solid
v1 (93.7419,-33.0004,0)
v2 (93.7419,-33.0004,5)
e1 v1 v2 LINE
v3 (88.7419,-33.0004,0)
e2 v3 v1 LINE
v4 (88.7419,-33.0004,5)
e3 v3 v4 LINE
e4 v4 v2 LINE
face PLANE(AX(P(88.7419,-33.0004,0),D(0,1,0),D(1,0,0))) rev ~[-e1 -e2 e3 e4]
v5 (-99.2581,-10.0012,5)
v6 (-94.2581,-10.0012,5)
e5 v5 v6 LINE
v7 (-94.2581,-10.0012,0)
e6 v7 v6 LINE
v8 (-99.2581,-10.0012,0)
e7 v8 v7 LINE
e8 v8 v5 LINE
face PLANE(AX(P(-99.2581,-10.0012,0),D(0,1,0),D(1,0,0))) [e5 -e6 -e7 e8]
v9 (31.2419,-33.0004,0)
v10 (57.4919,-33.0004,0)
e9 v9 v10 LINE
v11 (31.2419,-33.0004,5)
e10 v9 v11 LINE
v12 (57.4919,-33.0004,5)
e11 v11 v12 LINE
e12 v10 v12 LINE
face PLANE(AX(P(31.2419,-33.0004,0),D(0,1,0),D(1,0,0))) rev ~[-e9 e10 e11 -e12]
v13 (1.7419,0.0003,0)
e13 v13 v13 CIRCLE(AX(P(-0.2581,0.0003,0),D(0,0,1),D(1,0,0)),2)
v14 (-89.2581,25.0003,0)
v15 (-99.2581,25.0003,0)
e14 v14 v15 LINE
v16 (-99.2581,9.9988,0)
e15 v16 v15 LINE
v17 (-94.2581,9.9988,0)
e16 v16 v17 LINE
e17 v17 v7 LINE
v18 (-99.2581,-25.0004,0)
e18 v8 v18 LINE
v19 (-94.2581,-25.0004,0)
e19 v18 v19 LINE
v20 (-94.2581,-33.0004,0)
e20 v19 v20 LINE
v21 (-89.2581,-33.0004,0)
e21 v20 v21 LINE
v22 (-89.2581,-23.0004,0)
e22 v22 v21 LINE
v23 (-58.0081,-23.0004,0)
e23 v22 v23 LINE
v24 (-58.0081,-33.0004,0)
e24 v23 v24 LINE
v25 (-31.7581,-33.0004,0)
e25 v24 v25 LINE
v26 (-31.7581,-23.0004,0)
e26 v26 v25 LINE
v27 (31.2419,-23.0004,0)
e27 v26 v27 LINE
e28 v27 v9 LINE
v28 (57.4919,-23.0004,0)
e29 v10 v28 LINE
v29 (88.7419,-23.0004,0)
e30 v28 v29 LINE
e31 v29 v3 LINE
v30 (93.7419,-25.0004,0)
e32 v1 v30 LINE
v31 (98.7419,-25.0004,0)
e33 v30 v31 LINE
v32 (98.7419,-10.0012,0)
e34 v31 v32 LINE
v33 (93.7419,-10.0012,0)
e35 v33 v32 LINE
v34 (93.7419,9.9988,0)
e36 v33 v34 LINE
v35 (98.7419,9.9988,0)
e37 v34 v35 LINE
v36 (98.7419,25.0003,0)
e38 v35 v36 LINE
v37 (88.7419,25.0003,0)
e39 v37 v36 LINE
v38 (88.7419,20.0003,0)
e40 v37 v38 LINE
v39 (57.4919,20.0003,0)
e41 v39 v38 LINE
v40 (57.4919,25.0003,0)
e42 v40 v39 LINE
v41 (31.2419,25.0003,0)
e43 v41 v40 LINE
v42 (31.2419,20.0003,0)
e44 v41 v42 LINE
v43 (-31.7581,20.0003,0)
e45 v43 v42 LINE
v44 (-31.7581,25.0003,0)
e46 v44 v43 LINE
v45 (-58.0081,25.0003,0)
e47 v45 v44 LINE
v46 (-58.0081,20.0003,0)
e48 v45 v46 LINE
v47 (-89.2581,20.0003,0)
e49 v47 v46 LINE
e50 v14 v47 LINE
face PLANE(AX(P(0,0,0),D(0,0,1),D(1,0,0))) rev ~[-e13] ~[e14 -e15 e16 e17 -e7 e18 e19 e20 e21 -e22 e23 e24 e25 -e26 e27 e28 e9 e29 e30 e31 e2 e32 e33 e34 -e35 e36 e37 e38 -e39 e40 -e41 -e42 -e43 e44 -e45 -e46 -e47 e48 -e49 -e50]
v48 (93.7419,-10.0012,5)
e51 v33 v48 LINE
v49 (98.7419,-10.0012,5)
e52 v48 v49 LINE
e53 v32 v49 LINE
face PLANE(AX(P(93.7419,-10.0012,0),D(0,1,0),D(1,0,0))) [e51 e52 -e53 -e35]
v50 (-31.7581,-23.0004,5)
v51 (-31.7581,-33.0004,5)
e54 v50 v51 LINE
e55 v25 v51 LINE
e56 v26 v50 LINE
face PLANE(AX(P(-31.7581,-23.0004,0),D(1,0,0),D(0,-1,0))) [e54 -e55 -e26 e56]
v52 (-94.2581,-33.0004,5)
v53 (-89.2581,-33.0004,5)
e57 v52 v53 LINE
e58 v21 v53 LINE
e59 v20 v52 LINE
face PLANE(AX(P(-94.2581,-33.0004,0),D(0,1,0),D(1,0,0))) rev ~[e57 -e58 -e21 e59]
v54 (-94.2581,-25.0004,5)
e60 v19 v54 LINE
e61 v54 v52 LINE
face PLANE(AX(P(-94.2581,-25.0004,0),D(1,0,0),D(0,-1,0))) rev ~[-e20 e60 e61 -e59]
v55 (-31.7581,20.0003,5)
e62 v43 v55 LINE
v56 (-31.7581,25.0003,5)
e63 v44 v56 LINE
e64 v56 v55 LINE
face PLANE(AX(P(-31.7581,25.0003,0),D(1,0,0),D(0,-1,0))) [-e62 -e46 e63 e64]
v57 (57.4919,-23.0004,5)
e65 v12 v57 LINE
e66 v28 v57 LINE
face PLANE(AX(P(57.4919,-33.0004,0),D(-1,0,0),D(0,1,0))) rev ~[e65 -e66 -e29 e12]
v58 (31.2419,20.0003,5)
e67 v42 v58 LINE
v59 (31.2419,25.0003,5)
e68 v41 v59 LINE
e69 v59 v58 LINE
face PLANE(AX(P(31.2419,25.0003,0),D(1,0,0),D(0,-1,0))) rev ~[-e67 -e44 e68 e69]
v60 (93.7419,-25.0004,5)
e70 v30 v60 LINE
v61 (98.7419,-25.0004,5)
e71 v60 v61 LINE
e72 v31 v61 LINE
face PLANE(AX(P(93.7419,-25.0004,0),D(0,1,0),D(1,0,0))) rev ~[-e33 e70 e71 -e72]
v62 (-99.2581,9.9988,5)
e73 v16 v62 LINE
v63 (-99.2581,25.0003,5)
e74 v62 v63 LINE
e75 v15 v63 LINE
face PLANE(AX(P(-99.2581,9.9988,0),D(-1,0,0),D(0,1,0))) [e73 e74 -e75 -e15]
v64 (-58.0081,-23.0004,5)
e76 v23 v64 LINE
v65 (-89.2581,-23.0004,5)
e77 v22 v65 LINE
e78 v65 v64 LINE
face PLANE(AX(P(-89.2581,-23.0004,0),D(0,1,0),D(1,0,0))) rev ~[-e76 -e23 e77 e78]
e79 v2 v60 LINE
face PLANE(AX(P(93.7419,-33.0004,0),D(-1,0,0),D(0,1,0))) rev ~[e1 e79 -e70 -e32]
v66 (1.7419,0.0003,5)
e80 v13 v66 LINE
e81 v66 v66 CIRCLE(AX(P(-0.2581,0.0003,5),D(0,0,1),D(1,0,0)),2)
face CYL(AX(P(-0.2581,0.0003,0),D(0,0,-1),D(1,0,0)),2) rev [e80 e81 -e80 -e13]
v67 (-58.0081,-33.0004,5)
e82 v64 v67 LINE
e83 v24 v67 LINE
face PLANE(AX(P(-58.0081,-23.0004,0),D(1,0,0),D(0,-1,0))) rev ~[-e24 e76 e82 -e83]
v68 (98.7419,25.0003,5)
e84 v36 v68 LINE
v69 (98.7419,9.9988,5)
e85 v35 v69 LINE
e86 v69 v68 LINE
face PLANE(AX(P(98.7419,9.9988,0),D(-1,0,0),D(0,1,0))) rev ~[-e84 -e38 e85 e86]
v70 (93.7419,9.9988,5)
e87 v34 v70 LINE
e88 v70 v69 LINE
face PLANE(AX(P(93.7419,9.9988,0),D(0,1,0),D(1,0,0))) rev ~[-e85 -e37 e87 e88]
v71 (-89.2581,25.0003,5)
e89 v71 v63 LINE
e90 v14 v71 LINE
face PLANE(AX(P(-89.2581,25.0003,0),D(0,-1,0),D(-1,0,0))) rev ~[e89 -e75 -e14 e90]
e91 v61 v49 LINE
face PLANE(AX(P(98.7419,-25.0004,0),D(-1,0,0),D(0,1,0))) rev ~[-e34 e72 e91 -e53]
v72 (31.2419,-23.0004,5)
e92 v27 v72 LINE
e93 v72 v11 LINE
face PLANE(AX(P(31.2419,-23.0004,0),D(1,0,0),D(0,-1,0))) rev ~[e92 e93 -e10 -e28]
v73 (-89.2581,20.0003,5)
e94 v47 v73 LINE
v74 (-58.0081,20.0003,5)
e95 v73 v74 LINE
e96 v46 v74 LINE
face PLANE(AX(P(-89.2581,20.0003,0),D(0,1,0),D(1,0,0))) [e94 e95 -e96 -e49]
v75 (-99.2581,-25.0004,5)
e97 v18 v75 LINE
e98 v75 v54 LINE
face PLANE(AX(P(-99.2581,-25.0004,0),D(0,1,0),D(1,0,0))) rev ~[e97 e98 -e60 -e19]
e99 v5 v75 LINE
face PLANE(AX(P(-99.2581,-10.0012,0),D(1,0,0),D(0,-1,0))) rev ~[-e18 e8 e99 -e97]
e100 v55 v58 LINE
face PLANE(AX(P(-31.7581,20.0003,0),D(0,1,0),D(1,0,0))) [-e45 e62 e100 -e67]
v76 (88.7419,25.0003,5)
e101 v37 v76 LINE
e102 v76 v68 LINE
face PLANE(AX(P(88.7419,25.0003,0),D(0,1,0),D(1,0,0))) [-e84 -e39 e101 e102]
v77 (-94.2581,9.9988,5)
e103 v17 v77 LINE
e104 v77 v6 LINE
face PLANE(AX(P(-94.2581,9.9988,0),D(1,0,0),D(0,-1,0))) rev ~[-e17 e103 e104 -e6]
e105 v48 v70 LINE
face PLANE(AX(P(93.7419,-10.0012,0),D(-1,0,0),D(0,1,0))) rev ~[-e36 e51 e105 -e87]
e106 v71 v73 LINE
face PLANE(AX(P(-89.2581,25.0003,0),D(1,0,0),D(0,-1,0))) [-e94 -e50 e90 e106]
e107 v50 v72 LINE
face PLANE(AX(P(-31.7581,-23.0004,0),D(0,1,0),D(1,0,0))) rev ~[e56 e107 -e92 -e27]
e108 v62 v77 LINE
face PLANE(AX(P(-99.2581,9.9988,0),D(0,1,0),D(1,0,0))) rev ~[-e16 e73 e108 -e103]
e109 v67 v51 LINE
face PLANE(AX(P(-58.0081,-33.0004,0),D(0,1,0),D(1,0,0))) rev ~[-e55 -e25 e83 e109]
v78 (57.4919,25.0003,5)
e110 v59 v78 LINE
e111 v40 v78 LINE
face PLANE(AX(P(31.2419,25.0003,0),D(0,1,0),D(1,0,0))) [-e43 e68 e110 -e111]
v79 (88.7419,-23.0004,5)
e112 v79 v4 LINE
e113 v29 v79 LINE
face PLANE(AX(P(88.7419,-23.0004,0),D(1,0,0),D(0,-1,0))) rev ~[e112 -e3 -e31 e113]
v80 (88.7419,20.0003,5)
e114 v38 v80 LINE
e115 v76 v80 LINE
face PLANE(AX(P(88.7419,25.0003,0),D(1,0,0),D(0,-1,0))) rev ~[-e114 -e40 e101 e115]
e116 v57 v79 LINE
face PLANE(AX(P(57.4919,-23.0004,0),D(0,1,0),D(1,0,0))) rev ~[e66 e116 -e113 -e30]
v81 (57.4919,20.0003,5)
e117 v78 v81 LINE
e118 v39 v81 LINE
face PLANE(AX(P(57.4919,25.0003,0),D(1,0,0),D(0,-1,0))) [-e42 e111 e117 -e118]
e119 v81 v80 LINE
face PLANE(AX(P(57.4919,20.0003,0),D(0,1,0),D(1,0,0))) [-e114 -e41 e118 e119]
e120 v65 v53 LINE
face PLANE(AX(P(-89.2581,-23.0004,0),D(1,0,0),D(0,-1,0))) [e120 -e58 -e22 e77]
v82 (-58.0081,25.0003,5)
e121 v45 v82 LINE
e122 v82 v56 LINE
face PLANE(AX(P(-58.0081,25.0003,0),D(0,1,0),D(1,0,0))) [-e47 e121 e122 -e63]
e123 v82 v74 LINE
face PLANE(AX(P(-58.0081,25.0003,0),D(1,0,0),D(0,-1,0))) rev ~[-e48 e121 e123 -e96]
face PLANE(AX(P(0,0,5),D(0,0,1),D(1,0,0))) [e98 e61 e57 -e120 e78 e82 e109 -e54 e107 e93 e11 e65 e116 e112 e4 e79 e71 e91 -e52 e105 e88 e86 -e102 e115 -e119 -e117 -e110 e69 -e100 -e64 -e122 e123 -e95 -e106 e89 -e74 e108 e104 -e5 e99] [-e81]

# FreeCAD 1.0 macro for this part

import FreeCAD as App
import Part
import Sketcher

V = App.Vector
Q = App.Units.Quantity

doc = App.newDocument("Part")
body = doc.addObject("PartDesign::Body", "Body")

# Sketch on XY plane
sketch1 = doc.addObject("Sketcher::SketchObject", "Sketch")
body.addObject(sketch1)
sketch1.AttachmentSupport = (doc.XY_Plane, [""])
sketch1.MapMode = "FlatFace"
sketch1.addGeometry(Part.LineSegment(V(-89.3, -33, 0), V(-89.3, -23, 0)), False)
sketch1.addGeometry(Part.LineSegment(V(-89.3, -23, 0), V(-58, -23, 0)), False)
sketch1.addGeometry(Part.LineSegment(V(-58, -23, 0), V(-58, -33, 0)), False)
sketch1.addGeometry(Part.LineSegment(V(-58, -33, 0), V(-31.8, -33, 0)), False)
sketch1.addGeometry(Part.LineSegment(V(-31.8, -33, 0), V(-31.8, -23, 0)), False)
sketch1.addGeometry(Part.LineSegment(V(-31.8, -23, 0), V(31.2, -23, 0)), False)
sketch1.addGeometry(Part.LineSegment(V(31.2, -23, 0), V(31.2, -33, 0)), False)
sketch1.addGeometry(Part.LineSegment(V(31.2, -33, 0), V(57.5, -33, 0)), False)
sketch1.addGeometry(Part.LineSegment(V(57.5, -33, 0), V(57.5, -23, 0)), False)
sketch1.addGeometry(Part.LineSegment(V(57.5, -23, 0), V(88.7, -23, 0)), False)
sketch1.addGeometry(Part.LineSegment(V(88.7, -23, 0), V(88.7, -33, 0)), False)
sketch1.addGeometry(Part.LineSegment(V(88.7, -33, 0), V(93.7, -33, 0)), False)
sketch1.addGeometry(Part.LineSegment(V(93.7, -33, 0), V(93.7, -25, 0)), False)
sketch1.addGeometry(Part.LineSegment(V(93.7, -25, 0), V(98.7, -25, 0)), False)
sketch1.addGeometry(Part.LineSegment(V(98.7, -25, 0), V(98.7, -10, 0)), False)
sketch1.addGeometry(Part.LineSegment(V(98.7, -10, 0), V(93.7, -10, 0)), False)
sketch1.addGeometry(Part.LineSegment(V(93.7, -10, 0), V(93.7, 10, 0)), False)
sketch1.addGeometry(Part.LineSegment(V(93.7, 10, 0), V(98.7, 10, 0)), False)
sketch1.addGeometry(Part.LineSegment(V(98.7, 10, 0), V(98.7, 25, 0)), False)
sketch1.addGeometry(Part.LineSegment(V(98.7, 25, 0), V(88.7, 25, 0)), False)
sketch1.addGeometry(Part.LineSegment(V(88.7, 25, 0), V(88.7, 20, 0)), False)
sketch1.addGeometry(Part.LineSegment(V(88.7, 20, 0), V(57.5, 20, 0)), False)
sketch1.addGeometry(Part.LineSegment(V(57.5, 20, 0), V(57.5, 25, 0)), False)
sketch1.addGeometry(Part.LineSegment(V(57.5, 25, 0), V(31.2, 25, 0)), False)
sketch1.addGeometry(Part.LineSegment(V(31.2, 25, 0), V(31.2, 20, 0)), False)
sketch1.addGeometry(Part.LineSegment(V(31.2, 20, 0), V(-31.8, 20, 0)), False)
sketch1.addGeometry(Part.LineSegment(V(-31.8, 20, 0), V(-31.8, 25, 0)), False)
sketch1.addGeometry(Part.LineSegment(V(-31.8, 25, 0), V(-58, 25, 0)), False)
sketch1.addGeometry(Part.LineSegment(V(-58, 25, 0), V(-58, 20, 0)), False)
sketch1.addGeometry(Part.LineSegment(V(-58, 20, 0), V(-89.3, 20, 0)), False)
sketch1.addGeometry(Part.LineSegment(V(-89.3, 20, 0), V(-89.3, 25, 0)), False)
sketch1.addGeometry(Part.LineSegment(V(-89.3, 25, 0), V(-99.3, 25, 0)), False)
sketch1.addGeometry(Part.LineSegment(V(-99.3, 25, 0), V(-99.3, 10, 0)), False)
sketch1.addGeometry(Part.LineSegment(V(-99.3, 10, 0), V(-94.3, 10, 0)), False)
sketch1.addGeometry(Part.LineSegment(V(-94.3, 10, 0), V(-94.3, -10, 0)), False)
sketch1.addGeometry(Part.LineSegment(V(-94.3, -10, 0), V(-99.3, -10, 0)), False)
sketch1.addGeometry(Part.LineSegment(V(-99.3, -10, 0), V(-99.3, -25, 0)), False)
sketch1.addGeometry(Part.LineSegment(V(-99.3, -25, 0), V(-94.3, -25, 0)), False)
sketch1.addGeometry(Part.LineSegment(V(-94.3, -25, 0), V(-94.3, -33, 0)), False)
sketch1.addGeometry(Part.LineSegment(V(-94.3, -33, 0), V(-89.3, -33, 0)), False)
sketch1.addGeometry(Part.Circle(V(-0.3, 0, 0), V(0, 0, 1), 2), False)
sketch1.addConstraint(Sketcher.Constraint("Coincident", 0, 2, 1, 1))
sketch1.addConstraint(Sketcher.Constraint("Coincident", 1, 2, 2, 1))
sketch1.addConstraint(Sketcher.Constraint("Coincident", 2, 2, 3, 1))
sketch1.addConstraint(Sketcher.Constraint("Coincident", 3, 2, 4, 1))
sketch1.addConstraint(Sketcher.Constraint("Coincident", 4, 2, 5, 1))
sketch1.addConstraint(Sketcher.Constraint("Coincident", 5, 2, 6, 1))
sketch1.addConstraint(Sketcher.Constraint("Coincident", 6, 2, 7, 1))
sketch1.addConstraint(Sketcher.Constraint("Coincident", 7, 2, 8, 1))
sketch1.addConstraint(Sketcher.Constraint("Coincident", 8, 2, 9, 1))
sketch1.addConstraint(Sketcher.Constraint("Coincident", 9, 2, 10, 1))
sketch1.addConstraint(Sketcher.Constraint("Coincident", 10, 2, 11, 1))
sketch1.addConstraint(Sketcher.Constraint("Coincident", 11, 2, 12, 1))
sketch1.addConstraint(Sketcher.Constraint("Coincident", 12, 2, 13, 1))
sketch1.addConstraint(Sketcher.Constraint("Coincident", 13, 2, 14, 1))
sketch1.addConstraint(Sketcher.Constraint("Coincident", 14, 2, 15, 1))
sketch1.addConstraint(Sketcher.Constraint("Coincident", 15, 2, 16, 1))
sketch1.addConstraint(Sketcher.Constraint("Coincident", 16, 2, 17, 1))
sketch1.addConstraint(Sketcher.Constraint("Coincident", 17, 2, 18, 1))
sketch1.addConstraint(Sketcher.Constraint("Coincident", 18, 2, 19, 1))
sketch1.addConstraint(Sketcher.Constraint("Coincident", 19, 2, 20, 1))
sketch1.addConstraint(Sketcher.Constraint("Coincident", 20, 2, 21, 1))
sketch1.addConstraint(Sketcher.Constraint("Coincident", 21, 2, 22, 1))
sketch1.addConstraint(Sketcher.Constraint("Coincident", 22, 2, 23, 1))
sketch1.addConstraint(Sketcher.Constraint("Coincident", 23, 2, 24, 1))
sketch1.addConstraint(Sketcher.Constraint("Coincident", 24, 2, 25, 1))
sketch1.addConstraint(Sketcher.Constraint("Coincident", 25, 2, 26, 1))
sketch1.addConstraint(Sketcher.Constraint("Coincident", 26, 2, 27, 1))
sketch1.addConstraint(Sketcher.Constraint("Coincident", 27, 2, 28, 1))
sketch1.addConstraint(Sketcher.Constraint("Coincident", 28, 2, 29, 1))
sketch1.addConstraint(Sketcher.Constraint("Coincident", 29, 2, 30, 1))
sketch1.addConstraint(Sketcher.Constraint("Coincident", 30, 2, 31, 1))
sketch1.addConstraint(Sketcher.Constraint("Coincident", 31, 2, 32, 1))
sketch1.addConstraint(Sketcher.Constraint("Coincident", 32, 2, 33, 1))
sketch1.addConstraint(Sketcher.Constraint("Coincident", 33, 2, 34, 1))
sketch1.addConstraint(Sketcher.Constraint("Coincident", 34, 2, 35, 1))
sketch1.addConstraint(Sketcher.Constraint("Coincident", 35, 2, 36, 1))
sketch1.addConstraint(Sketcher.Constraint("Coincident", 36, 2, 37, 1))
sketch1.addConstraint(Sketcher.Constraint("Coincident", 37, 2, 38, 1))
sketch1.addConstraint(Sketcher.Constraint("Coincident", 38, 2, 39, 1))
sketch1.addConstraint(Sketcher.Constraint("Coincident", 39, 2, 0, 1))
sketch1.addConstraint(Sketcher.Constraint("Vertical", 0))
sketch1.addConstraint(Sketcher.Constraint("Horizontal", 1))
sketch1.addConstraint(Sketcher.Constraint("Vertical", 2))
sketch1.addConstraint(Sketcher.Constraint("Horizontal", 3))
sketch1.addConstraint(Sketcher.Constraint("Vertical", 4))
sketch1.addConstraint(Sketcher.Constraint("Horizontal", 5))
sketch1.addConstraint(Sketcher.Constraint("Vertical", 6))
sketch1.addConstraint(Sketcher.Constraint("Horizontal", 7))
sketch1.addConstraint(Sketcher.Constraint("Vertical", 8))
sketch1.addConstraint(Sketcher.Constraint("Horizontal", 9))
sketch1.addConstraint(Sketcher.Constraint("Vertical", 10))
sketch1.addConstraint(Sketcher.Constraint("Horizontal", 11))
sketch1.addConstraint(Sketcher.Constraint("Vertical", 12))
sketch1.addConstraint(Sketcher.Constraint("Horizontal", 13))
sketch1.addConstraint(Sketcher.Constraint("Vertical", 14))
sketch1.addConstraint(Sketcher.Constraint("Horizontal", 15))
sketch1.addConstraint(Sketcher.Constraint("Vertical", 16))
sketch1.addConstraint(Sketcher.Constraint("Horizontal", 17))
sketch1.addConstraint(Sketcher.Constraint("Vertical", 18))
sketch1.addConstraint(Sketcher.Constraint("Horizontal", 19))
sketch1.addConstraint(Sketcher.Constraint("Vertical", 20))
sketch1.addConstraint(Sketcher.Constraint("Horizontal", 21))
sketch1.addConstraint(Sketcher.Constraint("Vertical", 22))
sketch1.addConstraint(Sketcher.Constraint("Horizontal", 23))
sketch1.addConstraint(Sketcher.Constraint("Vertical", 24))
sketch1.addConstraint(Sketcher.Constraint("Horizontal", 25))
sketch1.addConstraint(Sketcher.Constraint("Vertical", 26))
sketch1.addConstraint(Sketcher.Constraint("Horizontal", 27))
sketch1.addConstraint(Sketcher.Constraint("Vertical", 28))
sketch1.addConstraint(Sketcher.Constraint("Horizontal", 29))
sketch1.addConstraint(Sketcher.Constraint("Vertical", 30))
sketch1.addConstraint(Sketcher.Constraint("Horizontal", 31))
sketch1.addConstraint(Sketcher.Constraint("Vertical", 32))
sketch1.addConstraint(Sketcher.Constraint("Horizontal", 33))
sketch1.addConstraint(Sketcher.Constraint("Vertical", 34))
sketch1.addConstraint(Sketcher.Constraint("Horizontal", 35))
sketch1.addConstraint(Sketcher.Constraint("Vertical", 36))
sketch1.addConstraint(Sketcher.Constraint("Horizontal", 37))
sketch1.addConstraint(Sketcher.Constraint("Vertical", 38))
sketch1.addConstraint(Sketcher.Constraint("Horizontal", 39))
sketch1.addConstraint(Sketcher.Constraint("Symmetric", 13, 2, 18, 2, -1))
sketch1.addConstraint(Sketcher.Constraint("Symmetric", 31, 2, 36, 2, -1))
sketch1.addConstraint(Sketcher.Constraint("Horizontal", 1, 2, 4, 2))
sketch1.addConstraint(Sketcher.Constraint("Horizontal", 3, 2, 6, 2))
sketch1.addConstraint(Sketcher.Constraint("Horizontal", 5, 2, 8, 2))
sketch1.addConstraint(Sketcher.Constraint("Horizontal", 7, 2, 10, 2))
sketch1.addConstraint(Sketcher.Constraint("Horizontal", 19, 2, 22, 2))
sketch1.addConstraint(Sketcher.Constraint("Horizontal", 21, 2, 24, 2))
sketch1.addConstraint(Sketcher.Constraint("Horizontal", 23, 2, 26, 2))
sketch1.addConstraint(Sketcher.Constraint("Horizontal", 25, 2, 28, 2))
sketch1.addConstraint(Sketcher.Constraint("Horizontal", 27, 2, 30, 2))
sketch1.addConstraint(Sketcher.Constraint("Horizontal", 17, 2, 32, 2))
sketch1.addConstraint(Sketcher.Constraint("Horizontal", 15, 2, 34, 2))
sketch1.addConstraint(Sketcher.Constraint("Horizontal", 11, 2, 38, 2))
sketch1.addConstraint(Sketcher.Constraint("Vertical", 12, 2, 15, 2))
sketch1.addConstraint(Sketcher.Constraint("Vertical", 10, 2, 19, 2))
sketch1.addConstraint(Sketcher.Constraint("Vertical", 8, 2, 21, 2))
sketch1.addConstraint(Sketcher.Constraint("Vertical", 6, 2, 23, 2))
sketch1.addConstraint(Sketcher.Constraint("Vertical", 4, 2, 25, 2))
sketch1.addConstraint(Sketcher.Constraint("Vertical", 2, 2, 27, 2))
sketch1.addConstraint(Sketcher.Constraint("Vertical", 0, 2, 29, 2))
sketch1.addConstraint(Sketcher.Constraint("Vertical", 34, 2, 37, 2))
sketch1.addConstraint(Sketcher.Constraint("Equal", 3, 7))
sketch1.addConstraint(Sketcher.Constraint("Equal", 1, 9))
sketch1.addConstraint(Sketcher.Constraint("Equal", 11, 13))
sketch1.addConstraint(Sketcher.Constraint("Equal", 19, 31))
sketch1.addConstraint(Sketcher.Constraint("Equal", 17, 33))
sketch1.addConstraint(Sketcher.Constraint("Equal", 31, 0))
sketch1.addConstraint(Sketcher.Constraint("Equal", 39, 20))
sketch1.addConstraint(Sketcher.Constraint("Diameter", 40, Q("4 mm")))
sketch1.addConstraint(Sketcher.Constraint("DistanceX", 5, 1, 5, 2, Q("63 mm")))
sketch1.addConstraint(Sketcher.Constraint("DistanceX", 11, 1, 11, 2, Q("5 mm")))
sketch1.addConstraint(Sketcher.Constraint("DistanceX", 1, 1, 1, 2, Q("31.25 mm")))
sketch1.addConstraint(Sketcher.Constraint("DistanceX", 3, 1, 3, 2, Q("26.25 mm")))
sketch1.addConstraint(Sketcher.Constraint("DistanceY", 12, 1, 12, 2, Q("8 mm")))
sketch1.addConstraint(Sketcher.Constraint("DistanceY", 16, 1, 16, 2, Q("20 mm")))
sketch1.addConstraint(Sketcher.Constraint("DistanceX", 0, 2, 40, 3, Q("89 mm")))
sketch1.addConstraint(Sketcher.Constraint("DistanceY", 40, 3, 23, 2, Q("25 mm")))
sketch1.addConstraint(Sketcher.Constraint("DistanceY", 9, 2, 18, 2, Q("48.0007 mm")))
sketch1.addConstraint(Sketcher.Constraint("DistanceY", 14, 1, 14, 2, Q("14.9992 mm")))
sketch1.addConstraint(Sketcher.Constraint("DistanceX", 40, 3, -1, 1, Q("0.258 mm")))
pad1 = doc.addObject("PartDesign::Pad", "Pad")
body.addObject(pad1)
pad1.Profile = sketch1
pad1.Length = 5

doc.recompute()
